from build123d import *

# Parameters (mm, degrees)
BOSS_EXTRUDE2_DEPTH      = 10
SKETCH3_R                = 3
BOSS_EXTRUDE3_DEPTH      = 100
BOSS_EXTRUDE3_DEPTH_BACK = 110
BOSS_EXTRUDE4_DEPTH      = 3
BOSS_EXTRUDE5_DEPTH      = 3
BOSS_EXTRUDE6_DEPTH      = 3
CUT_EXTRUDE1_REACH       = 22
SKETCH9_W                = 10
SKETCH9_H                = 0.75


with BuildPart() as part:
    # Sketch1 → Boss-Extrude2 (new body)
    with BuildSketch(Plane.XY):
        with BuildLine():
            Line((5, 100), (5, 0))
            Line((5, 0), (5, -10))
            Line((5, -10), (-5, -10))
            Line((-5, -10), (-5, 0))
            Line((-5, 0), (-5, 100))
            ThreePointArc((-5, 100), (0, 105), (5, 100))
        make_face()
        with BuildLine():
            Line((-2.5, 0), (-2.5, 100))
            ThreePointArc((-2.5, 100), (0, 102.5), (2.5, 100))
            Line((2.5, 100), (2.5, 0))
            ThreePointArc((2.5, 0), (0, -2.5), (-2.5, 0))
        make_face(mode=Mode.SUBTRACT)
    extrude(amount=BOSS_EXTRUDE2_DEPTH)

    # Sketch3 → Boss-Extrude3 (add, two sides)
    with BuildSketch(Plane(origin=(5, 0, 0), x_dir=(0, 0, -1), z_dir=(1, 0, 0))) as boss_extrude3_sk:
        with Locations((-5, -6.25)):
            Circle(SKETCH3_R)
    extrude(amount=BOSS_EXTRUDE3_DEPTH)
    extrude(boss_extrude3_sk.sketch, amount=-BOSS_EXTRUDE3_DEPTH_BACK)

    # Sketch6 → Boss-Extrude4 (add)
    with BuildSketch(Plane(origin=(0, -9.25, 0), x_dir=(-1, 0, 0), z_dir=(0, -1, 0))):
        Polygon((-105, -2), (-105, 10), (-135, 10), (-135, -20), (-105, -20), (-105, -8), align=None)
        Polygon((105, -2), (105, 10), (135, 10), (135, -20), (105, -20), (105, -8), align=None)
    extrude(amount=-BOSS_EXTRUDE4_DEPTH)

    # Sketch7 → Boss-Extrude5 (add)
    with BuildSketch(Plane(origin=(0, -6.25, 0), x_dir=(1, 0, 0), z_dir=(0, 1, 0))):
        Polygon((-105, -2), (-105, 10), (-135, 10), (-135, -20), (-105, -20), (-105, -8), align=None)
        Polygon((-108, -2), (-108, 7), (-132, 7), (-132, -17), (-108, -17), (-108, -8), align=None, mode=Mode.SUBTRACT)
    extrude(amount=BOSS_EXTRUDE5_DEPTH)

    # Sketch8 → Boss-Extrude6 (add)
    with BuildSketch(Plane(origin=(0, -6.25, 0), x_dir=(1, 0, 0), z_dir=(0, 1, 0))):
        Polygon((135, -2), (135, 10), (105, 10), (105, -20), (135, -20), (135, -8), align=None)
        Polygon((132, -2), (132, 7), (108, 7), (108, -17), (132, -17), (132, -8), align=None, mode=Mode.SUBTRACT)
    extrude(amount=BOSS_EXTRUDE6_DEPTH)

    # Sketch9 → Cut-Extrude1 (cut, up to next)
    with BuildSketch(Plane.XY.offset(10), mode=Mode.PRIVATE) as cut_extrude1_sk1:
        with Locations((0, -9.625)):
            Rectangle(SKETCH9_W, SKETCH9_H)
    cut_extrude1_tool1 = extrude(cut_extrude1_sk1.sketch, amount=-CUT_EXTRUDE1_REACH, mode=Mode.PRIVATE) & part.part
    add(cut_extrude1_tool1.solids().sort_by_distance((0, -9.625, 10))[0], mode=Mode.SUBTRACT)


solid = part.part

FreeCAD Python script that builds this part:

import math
import FreeCAD as App
import Part
import Sketcher

V = App.Vector
Q = App.Units.Quantity


def add_polygon(sketch, points):
    """Adds a closed chain of lines whose ends are joined by coincident constraints."""
    first, n = sketch.GeometryCount, len(points)
    for a, b in zip(points, points[1:] + points[:1]):
        sketch.addGeometry(Part.LineSegment(App.Vector(*a, 0), App.Vector(*b, 0)), False)
    for i in range(n):
        sketch.addConstraint(Sketcher.Constraint("Coincident", first + i, 2, first + (i + 1) % n, 1))

doc = App.newDocument("Part")
body = doc.addObject("PartDesign::Body", "Body")

# Sketch on XY plane
sketch1 = body.newObject("Sketcher::SketchObject", "Sketch")
sketch1.AttachmentSupport = (doc.getObject("XY_Plane"), [""])
sketch1.MapMode = "FlatFace"
sketch1.addGeometry([
    Part.LineSegment(V(5, -10, 0), V(5, 100, 0)),  # 0
    Part.ArcOfCircle(Part.Circle(V(0, 100, 0), V(0, 0, 1), 5), math.radians(0), math.radians(180)),  # 1
    Part.LineSegment(V(-5, 100, 0), V(-5, -10, 0)),  # 2
    Part.LineSegment(V(-5, -10, 0), V(5, -10, 0)),  # 3
    Part.LineSegment(V(-2.5, 0, 0), V(-2.5, 100, 0)),  # 4
    Part.ArcOfCircle(Part.Circle(V(0, 100, 0), V(0, 0, 1), 2.5), math.radians(0), math.radians(180)),  # 5
    Part.LineSegment(V(2.5, 100, 0), V(2.5, 0, 0)),  # 6
    Part.ArcOfCircle(Part.Circle(V(0, 0, 0), V(0, 0, 1), 2.5), math.radians(180), math.radians(360)),  # 7
], False)
sketch1.addConstraint([
    Sketcher.Constraint("Tangent", 0, 2, 1, 1),
    Sketcher.Constraint("Tangent", 1, 2, 2, 1),
    Sketcher.Constraint("Coincident", 2, 2, 3, 1),
    Sketcher.Constraint("Coincident", 3, 2, 0, 1),
    Sketcher.Constraint("Tangent", 4, 2, 5, 2),
    Sketcher.Constraint("Tangent", 5, 1, 6, 1),
    Sketcher.Constraint("Tangent", 6, 2, 7, 2),
    Sketcher.Constraint("Tangent", 7, 1, 4, 1),
    Sketcher.Constraint("Vertical", 0),
    Sketcher.Constraint("Vertical", 2),
    Sketcher.Constraint("Horizontal", 3),
    Sketcher.Constraint("Vertical", 4),
    Sketcher.Constraint("Vertical", 6),
    Sketcher.Constraint("Coincident", 7, 3, -1, 1),
    Sketcher.Constraint("Coincident", 5, 3, 1, 3),
    Sketcher.Constraint("Radius", 1, Q("5 mm")),
    Sketcher.Constraint("Radius", 5, Q("2.5 mm")),
    Sketcher.Constraint("DistanceY", 0, 1, 0, 2, Q("110 mm")),
    Sketcher.Constraint("DistanceY", 4, 1, 4, 2, Q("100 mm")),
])
pad1 = body.newObject("PartDesign::Pad", "Pad")
pad1.Profile = sketch1
pad1.Length = 10

# Sketch on YZ plane
sketch2 = body.newObject("Sketcher::SketchObject", "Sketch001")
sketch2.AttachmentSupport = (doc.getObject("YZ_Plane"), [""])
sketch2.MapMode = "FlatFace"
sketch2.AttachmentOffset = App.Placement(V(0, 0, 5), App.Rotation())
sketch2.addGeometry(Part.Circle(V(-6.2, 5, 0), V(0, 0, 1), 3), False)
sketch2.addConstraint([
    Sketcher.Constraint("Diameter", 0, Q("6 mm")),
    Sketcher.Constraint("DistanceY", -1, 1, 0, 3, Q("5 mm")),
    Sketcher.Constraint("DistanceX", 0, 3, -1, 1, Q("6.25 mm")),
])
pad2 = body.newObject("PartDesign::Pad", "Pad001")
pad2.Profile = sketch2
pad2.Type = "TwoLengths"
pad2.Length = 100
pad2.Length2 = 110

# Sketch on XZ plane
sketch3 = body.newObject("Sketcher::SketchObject", "Sketch002")
sketch3.AttachmentSupport = (doc.getObject("XZ_Plane"), [""])
sketch3.MapMode = "FlatFace"
sketch3.AttachmentOffset = App.Placement(V(0, 0, 9.25), App.Rotation())
add_polygon(sketch3, [(105, -10), (135, -10), (135, 20), (105, 20)])  # lines 0-3
add_polygon(sketch3, [(-105, -10), (-105, 20), (-135, 20), (-135, -10)])  # lines 4-7
sketch3.addConstraint([
    Sketcher.Constraint("Horizontal", 0),
    Sketcher.Constraint("Vertical", 1),
    Sketcher.Constraint("Horizontal", 2),
    Sketcher.Constraint("Vertical", 3),
    Sketcher.Constraint("Vertical", 4),
    Sketcher.Constraint("Horizontal", 5),
    Sketcher.Constraint("Vertical", 6),
    Sketcher.Constraint("Horizontal", 7),
    Sketcher.Constraint("Symmetric", 2, 2, 4, 2, -2),
    Sketcher.Constraint("Symmetric", 0, 2, 6, 2, -2),
    Sketcher.Constraint("Equal", 7, 1),
    Sketcher.Constraint("DistanceX", 0, 1, 0, 2, Q("30 mm")),
    Sketcher.Constraint("DistanceX", -1, 1, 0, 2, Q("135 mm")),
    Sketcher.Constraint("DistanceY", 0, 2, -1, 1, Q("10 mm")),
])
pad3 = body.newObject("PartDesign::Pad", "Pad002")
pad3.Profile = sketch3
pad3.Length = 3
pad3.Reversed = True

# Sketch on XZ plane
sketch4 = body.newObject("Sketcher::SketchObject", "Sketch003")
sketch4.AttachmentSupport = (doc.getObject("XZ_Plane"), [""])
sketch4.MapMode = "FlatFace"
sketch4.AttachmentOffset = App.Placement(V(0, 0, 6.25), App.Rotation())
add_polygon(sketch4, [(-105, -10), (-135, -10), (-135, 20), (-105, 20)])  # lines 0-3
add_polygon(sketch4, [(-108, -7), (-108, 17), (-132, 17), (-132, -7)])  # lines 4-7
sketch4.addConstraint([
    Sketcher.Constraint("Horizontal", 0),
    Sketcher.Constraint("Vertical", 1),
    Sketcher.Constraint("Horizontal", 2),
    Sketcher.Constraint("Vertical", 3),
    Sketcher.Constraint("Vertical", 4),
    Sketcher.Constraint("Horizontal", 5),
    Sketcher.Constraint("Vertical", 6),
    Sketcher.Constraint("Horizontal", 7),
    Sketcher.Constraint("Equal", 2, 1),
    Sketcher.Constraint("Equal", 7, 4),
    Sketcher.Constraint("DistanceX", 0, 2, 0, 1, Q("30 mm")),
    Sketcher.Constraint("DistanceX", 5, 2, 5, 1, Q("24 mm")),
    Sketcher.Constraint("DistanceX", 0, 2, -1, 1, Q("135 mm")),
    Sketcher.Constraint("DistanceY", 0, 2, -1, 1, Q("10 mm")),
    Sketcher.Constraint("DistanceX", 4, 2, -1, 1, Q("108 mm")),
    Sketcher.Constraint("DistanceY", -1, 1, 4, 2, Q("17 mm")),
])
pad4 = body.newObject("PartDesign::Pad", "Pad003")
pad4.Profile = sketch4
pad4.Length = 3
pad4.Reversed = True

# Sketch on XZ plane
sketch5 = body.newObject("Sketcher::SketchObject", "Sketch004")
sketch5.AttachmentSupport = (doc.getObject("XZ_Plane"), [""])
sketch5.MapMode = "FlatFace"
sketch5.AttachmentOffset = App.Placement(V(0, 0, 6.25), App.Rotation())
add_polygon(sketch5, [(135, -10), (105, -10), (105, 20), (135, 20)])  # lines 0-3
add_polygon(sketch5, [(132, -7), (132, 17), (108, 17), (108, -7)])  # lines 4-7
sketch5.addConstraint([
    Sketcher.Constraint("Horizontal", 0),
    Sketcher.Constraint("Vertical", 1),
    Sketcher.Constraint("Horizontal", 2),
    Sketcher.Constraint("Vertical", 3),
    Sketcher.Constraint("Vertical", 4),
    Sketcher.Constraint("Horizontal", 5),
    Sketcher.Constraint("Vertical", 6),
    Sketcher.Constraint("Horizontal", 7),
    Sketcher.Constraint("Equal", 2, 1),
    Sketcher.Constraint("Equal", 7, 4),
    Sketcher.Constraint("DistanceX", 0, 2, 0, 1, Q("30 mm")),
    Sketcher.Constraint("DistanceX", 5, 2, 5, 1, Q("24 mm")),
    Sketcher.Constraint("DistanceX", -1, 1, 0, 2, Q("105 mm")),
    Sketcher.Constraint("DistanceY", 0, 2, -1, 1, Q("10 mm")),
    Sketcher.Constraint("DistanceX", -1, 1, 4, 2, Q("132 mm")),
    Sketcher.Constraint("DistanceY", -1, 1, 4, 2, Q("17 mm")),
])
pad5 = body.newObject("PartDesign::Pad", "Pad004")
pad5.Profile = sketch5
pad5.Length = 3
pad5.Reversed = True

# Sketch on XY plane
sketch6 = body.newObject("Sketcher::SketchObject", "Sketch005")
sketch6.AttachmentSupport = (doc.getObject("XY_Plane"), [""])
sketch6.MapMode = "FlatFace"
sketch6.AttachmentOffset = App.Placement(V(0, 0, 10), App.Rotation())
add_polygon(sketch6, [(-5, -9.2), (-5, -10), (5, -10), (5, -9.2)])  # lines 0-3
sketch6.addConstraint([
    Sketcher.Constraint("Vertical", 0),
    Sketcher.Constraint("Horizontal", 1),
    Sketcher.Constraint("Vertical", 2),
    Sketcher.Constraint("Horizontal", 3),
    Sketcher.Constraint("DistanceX", 1, 1, 1, 2, Q("10 mm")),
    Sketcher.Constraint("DistanceX", 0, 2, -1, 1, Q("5 mm")),
    Sketcher.Constraint("DistanceY", 0, 2, -1, 1, Q("10 mm")),
    Sketcher.Constraint("DistanceY", 0, 2, 0, 1, Q("0.75 mm")),
])
pocket1 = body.newObject("PartDesign::Pocket", "Pocket")
pocket1.Profile = sketch6
pocket1.Type = "UpToFirst"

doc.recompute()
